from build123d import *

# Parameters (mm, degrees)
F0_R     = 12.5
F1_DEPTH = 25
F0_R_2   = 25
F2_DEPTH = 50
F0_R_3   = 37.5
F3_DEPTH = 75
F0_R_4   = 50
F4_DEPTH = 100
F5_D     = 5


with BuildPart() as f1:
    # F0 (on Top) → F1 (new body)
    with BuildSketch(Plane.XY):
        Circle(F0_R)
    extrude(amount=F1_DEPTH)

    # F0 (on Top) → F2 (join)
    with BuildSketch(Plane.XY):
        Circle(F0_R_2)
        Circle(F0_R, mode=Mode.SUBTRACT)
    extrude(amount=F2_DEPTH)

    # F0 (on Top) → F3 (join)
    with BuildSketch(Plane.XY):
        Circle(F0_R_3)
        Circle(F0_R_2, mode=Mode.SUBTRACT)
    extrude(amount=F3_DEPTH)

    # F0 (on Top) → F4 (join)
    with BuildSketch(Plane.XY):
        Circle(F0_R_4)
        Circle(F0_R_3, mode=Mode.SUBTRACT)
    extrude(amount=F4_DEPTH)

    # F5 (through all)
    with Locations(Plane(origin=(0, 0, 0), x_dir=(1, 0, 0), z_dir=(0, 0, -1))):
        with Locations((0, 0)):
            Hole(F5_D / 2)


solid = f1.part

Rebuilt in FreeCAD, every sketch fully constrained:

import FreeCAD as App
import Part
import Sketcher
Q = App.Units.Quantity

doc = App.newDocument("Part")
params = doc.addObject("Spreadsheet::Sheet", "Params")
for row, (alias, value) in enumerate([
    ("sketch1_diameter", "25 mm"),
    ("pad1_length", "25 mm"),
    ("sketch2_diameter", "50 mm"),
    ("sketch2_diameter2", "25 mm"),
    ("pad2_length", "50 mm"),
    ("sketch3_diameter", "75 mm"),
    ("sketch3_diameter2", "50 mm"),
    ("pad3_length", "75 mm"),
    ("sketch4_diameter", "100 mm"),
    ("sketch4_diameter2", "75 mm"),
    ("pad4_length", "100 mm"),
    ("sketch5_diameter", "5 mm"),
    ("hole_diameter", "5 mm"),
], start=1):
    params.set(f"A{row}", alias)
    params.set(f"B{row}", "=" + value)
    params.setAlias(f"B{row}", alias)

body = doc.addObject("PartDesign::Body", "Body")

# Sketch on XY plane
sketch1 = body.newObject("Sketcher::SketchObject", "Sketch")
sketch1.AttachmentSupport = (doc.getObject("XY_Plane"), [""])
sketch1.MapMode = "FlatFace"
sketch1.addGeometry(Part.Circle(App.Vector(0, 0, 0), App.Vector(0, 0, 1), 12.5), False)
sketch1.addConstraint([
    Sketcher.Constraint("Coincident", 0, 3, -1, 1),
    Sketcher.Constraint("Diameter", 0, Q("25 mm")),
])
sketch1.setExpression("Constraints[1]", "Params.sketch1_diameter")
pad1 = body.newObject("PartDesign::Pad", "Pad")
pad1.Profile = sketch1
pad1.setExpression("Length", "Params.pad1_length")

# Sketch on XY plane
sketch2 = body.newObject("Sketcher::SketchObject", "Sketch001")
sketch2.AttachmentSupport = (doc.getObject("XY_Plane"), [""])
sketch2.MapMode = "FlatFace"
sketch2.addGeometry([
    Part.Circle(App.Vector(0, 0, 0), App.Vector(0, 0, 1), 25),
    Part.Circle(App.Vector(0, 0, 0), App.Vector(0, 0, 1), 12.5),
], False)
sketch2.addConstraint([
    Sketcher.Constraint("Coincident", 0, 3, -1, 1),
    Sketcher.Constraint("Coincident", 1, 3, -1, 1),
    Sketcher.Constraint("Diameter", 0, Q("50 mm")),
    Sketcher.Constraint("Diameter", 1, Q("25 mm")),
])
sketch2.setExpression("Constraints[2]", "Params.sketch2_diameter")
sketch2.setExpression("Constraints[3]", "Params.sketch2_diameter2")
pad2 = body.newObject("PartDesign::Pad", "Pad001")
pad2.Profile = sketch2
pad2.setExpression("Length", "Params.pad2_length")

# Sketch on XY plane
sketch3 = body.newObject("Sketcher::SketchObject", "Sketch002")
sketch3.AttachmentSupport = (doc.getObject("XY_Plane"), [""])
sketch3.MapMode = "FlatFace"
sketch3.addGeometry([
    Part.Circle(App.Vector(0, 0, 0), App.Vector(0, 0, 1), 37.5),
    Part.Circle(App.Vector(0, 0, 0), App.Vector(0, 0, 1), 25),
], False)
sketch3.addConstraint([
    Sketcher.Constraint("Coincident", 0, 3, -1, 1),
    Sketcher.Constraint("Coincident", 1, 3, -1, 1),
    Sketcher.Constraint("Diameter", 0, Q("75 mm")),
    Sketcher.Constraint("Diameter", 1, Q("50 mm")),
])
sketch3.setExpression("Constraints[2]", "Params.sketch3_diameter")
sketch3.setExpression("Constraints[3]", "Params.sketch3_diameter2")
pad3 = body.newObject("PartDesign::Pad", "Pad002")
pad3.Profile = sketch3
pad3.setExpression("Length", "Params.pad3_length")

# Sketch on XY plane
sketch4 = body.newObject("Sketcher::SketchObject", "Sketch003")
sketch4.AttachmentSupport = (doc.getObject("XY_Plane"), [""])
sketch4.MapMode = "FlatFace"
sketch4.addGeometry([
    Part.Circle(App.Vector(0, 0, 0), App.Vector(0, 0, 1), 50),
    Part.Circle(App.Vector(0, 0, 0), App.Vector(0, 0, 1), 37.5),
], False)
sketch4.addConstraint([
    Sketcher.Constraint("Coincident", 0, 3, -1, 1),
    Sketcher.Constraint("Coincident", 1, 3, -1, 1),
    Sketcher.Constraint("Diameter", 0, Q("100 mm")),
    Sketcher.Constraint("Diameter", 1, Q("75 mm")),
])
sketch4.setExpression("Constraints[2]", "Params.sketch4_diameter")
sketch4.setExpression("Constraints[3]", "Params.sketch4_diameter2")
pad4 = body.newObject("PartDesign::Pad", "Pad003")
pad4.Profile = sketch4
pad4.setExpression("Length", "Params.pad4_length")

# Sketch on XY plane
sketch5 = body.newObject("Sketcher::SketchObject", "Sketch004")
sketch5.AttachmentSupport = (doc.getObject("XY_Plane"), [""])
sketch5.MapMode = "FlatFace"
sketch5.addGeometry(Part.Circle(App.Vector(0, 0, 0), App.Vector(0, 0, 1), 2.5), False)
sketch5.addConstraint([
    Sketcher.Constraint("Coincident", 0, 3, -1, 1),
    Sketcher.Constraint("Diameter", 0, Q("5 mm")),
])
sketch5.setExpression("Constraints[1]", "Params.sketch5_diameter")
doc.recompute()
hole = body.newObject("PartDesign::Hole", "Hole")
hole.Profile = sketch5
hole.ThreadType = "None"
hole.setExpression("Diameter", "Params.hole_diameter")
hole.DepthType = "ThroughAll"
hole.Reversed = True

doc.recompute()
